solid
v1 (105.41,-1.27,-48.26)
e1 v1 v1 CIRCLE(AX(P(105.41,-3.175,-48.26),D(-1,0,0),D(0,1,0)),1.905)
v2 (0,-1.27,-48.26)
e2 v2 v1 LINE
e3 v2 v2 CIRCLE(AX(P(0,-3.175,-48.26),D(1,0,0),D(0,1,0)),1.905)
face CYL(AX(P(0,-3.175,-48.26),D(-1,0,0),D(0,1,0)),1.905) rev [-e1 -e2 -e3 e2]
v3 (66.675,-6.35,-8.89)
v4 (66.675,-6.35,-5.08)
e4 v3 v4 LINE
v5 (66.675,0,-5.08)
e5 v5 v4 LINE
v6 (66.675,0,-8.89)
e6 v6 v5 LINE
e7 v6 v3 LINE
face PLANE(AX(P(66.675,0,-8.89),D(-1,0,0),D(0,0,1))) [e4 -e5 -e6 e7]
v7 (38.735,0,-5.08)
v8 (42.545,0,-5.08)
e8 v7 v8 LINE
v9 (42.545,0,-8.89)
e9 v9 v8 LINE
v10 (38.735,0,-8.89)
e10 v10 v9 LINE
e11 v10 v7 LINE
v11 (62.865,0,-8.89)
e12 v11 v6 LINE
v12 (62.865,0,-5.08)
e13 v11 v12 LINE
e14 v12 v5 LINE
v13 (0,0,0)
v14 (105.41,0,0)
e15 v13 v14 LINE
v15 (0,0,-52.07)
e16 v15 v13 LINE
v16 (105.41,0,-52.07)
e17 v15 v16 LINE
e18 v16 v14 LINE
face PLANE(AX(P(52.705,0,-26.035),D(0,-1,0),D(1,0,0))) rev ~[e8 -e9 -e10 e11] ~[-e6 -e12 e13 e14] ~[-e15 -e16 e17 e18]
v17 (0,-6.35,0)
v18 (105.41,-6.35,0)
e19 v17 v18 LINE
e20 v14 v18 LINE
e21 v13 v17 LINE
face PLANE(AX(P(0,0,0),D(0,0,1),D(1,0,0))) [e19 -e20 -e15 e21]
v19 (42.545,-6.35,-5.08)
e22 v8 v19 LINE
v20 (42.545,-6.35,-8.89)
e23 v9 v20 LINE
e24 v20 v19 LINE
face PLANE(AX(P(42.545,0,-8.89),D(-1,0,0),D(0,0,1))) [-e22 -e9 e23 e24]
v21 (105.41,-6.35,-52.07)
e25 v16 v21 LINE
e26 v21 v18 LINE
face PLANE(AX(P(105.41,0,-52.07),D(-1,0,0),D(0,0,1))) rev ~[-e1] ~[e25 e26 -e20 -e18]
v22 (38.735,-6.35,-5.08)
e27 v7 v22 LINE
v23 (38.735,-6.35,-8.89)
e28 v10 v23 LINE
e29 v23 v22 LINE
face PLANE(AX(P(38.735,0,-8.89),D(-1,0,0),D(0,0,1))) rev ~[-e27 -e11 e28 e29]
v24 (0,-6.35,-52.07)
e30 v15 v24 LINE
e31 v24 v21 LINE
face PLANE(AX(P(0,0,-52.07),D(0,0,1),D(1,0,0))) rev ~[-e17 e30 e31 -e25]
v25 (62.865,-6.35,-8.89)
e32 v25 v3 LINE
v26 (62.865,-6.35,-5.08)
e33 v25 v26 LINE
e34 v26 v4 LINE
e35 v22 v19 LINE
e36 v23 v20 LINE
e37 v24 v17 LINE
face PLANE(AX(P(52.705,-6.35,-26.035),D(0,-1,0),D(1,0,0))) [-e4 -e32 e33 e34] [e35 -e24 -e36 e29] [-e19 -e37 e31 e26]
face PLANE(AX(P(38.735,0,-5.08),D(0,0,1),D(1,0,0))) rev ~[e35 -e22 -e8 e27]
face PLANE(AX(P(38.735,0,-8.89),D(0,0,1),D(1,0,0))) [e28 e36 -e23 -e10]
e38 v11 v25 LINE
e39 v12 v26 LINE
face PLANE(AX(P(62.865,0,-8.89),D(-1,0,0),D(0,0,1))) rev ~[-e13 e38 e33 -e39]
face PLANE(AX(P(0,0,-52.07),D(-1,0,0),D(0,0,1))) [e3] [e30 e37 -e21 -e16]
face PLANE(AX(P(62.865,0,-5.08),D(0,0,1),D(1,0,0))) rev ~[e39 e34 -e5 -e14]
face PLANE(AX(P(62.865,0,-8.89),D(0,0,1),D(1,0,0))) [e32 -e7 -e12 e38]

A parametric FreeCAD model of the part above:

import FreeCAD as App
import Part
import Sketcher

V = App.Vector
Q = App.Units.Quantity


def add_polygon(sketch, points):
    """Adds a closed chain of lines whose ends are joined by coincident constraints."""
    first, n = sketch.GeometryCount, len(points)
    for a, b in zip(points, points[1:] + points[:1]):
        sketch.addGeometry(Part.LineSegment(App.Vector(*a, 0), App.Vector(*b, 0)), False)
    for i in range(n):
        sketch.addConstraint(Sketcher.Constraint("Coincident", first + i, 2, first + (i + 1) % n, 1))

doc = App.newDocument("Part")
params = doc.addObject("Spreadsheet::Sheet", "Params")
for row, (alias, value) in enumerate([
    ("sketch1_width", "4.15 in"),
    ("sketch1_width2", "0.15 in"),
    ("sketch1_height", "2.05 in"),
    ("pad1_length", "0.25 in"),
    ("sketch2_diameter", "0.15 in"),
], start=1):
    params.set(f"A{row}", alias)
    params.set(f"B{row}", "=" + value)
    params.setAlias(f"B{row}", alias)

body = doc.addObject("PartDesign::Body", "Body")

sketch1 = body.newObject("Sketcher::SketchObject", "Sketch")
sketch1.AttachmentSupport = (doc.getObject("XZ_Plane"), [""])
sketch1.MapMode = "FlatFace"
add_polygon(sketch1, [(0, 0), (0, -52.07), (105.41, -52.07), (105.41, 0)])
add_polygon(sketch1, [(42.545, -8.89), (38.735, -8.89), (38.735, -5.08), (42.545, -5.08)])
add_polygon(sketch1, [(66.675, -8.89), (62.865, -8.89), (62.865, -5.08), (66.675, -5.08)])
sketch1.addConstraint(Sketcher.Constraint("Vertical", 0))
sketch1.addConstraint(Sketcher.Constraint("Horizontal", 1))
sketch1.addConstraint(Sketcher.Constraint("Vertical", 2))
sketch1.addConstraint(Sketcher.Constraint("Horizontal", 3))
sketch1.addConstraint(Sketcher.Constraint("Horizontal", 4))
sketch1.addConstraint(Sketcher.Constraint("Vertical", 5))
sketch1.addConstraint(Sketcher.Constraint("Horizontal", 6))
sketch1.addConstraint(Sketcher.Constraint("Vertical", 7))
sketch1.addConstraint(Sketcher.Constraint("Horizontal", 8))
sketch1.addConstraint(Sketcher.Constraint("Vertical", 9))
sketch1.addConstraint(Sketcher.Constraint("Horizontal", 10))
sketch1.addConstraint(Sketcher.Constraint("Vertical", 11))
sketch1.addConstraint(Sketcher.Constraint("Coincident", 3, 2, -1, 1))
sketch1.addConstraint(Sketcher.Constraint("Horizontal", 7, 2, 8, 2))
sketch1.addConstraint(Sketcher.Constraint("Horizontal", 6, 2, 9, 2))
sketch1.addConstraint(Sketcher.Constraint("Equal", 6, 8))
sketch1.addConstraint(Sketcher.Constraint("Equal", 10, 5))
sketch1.addConstraint(Sketcher.Constraint("DistanceX", 1, 1, 1, 2, Q("4.15 in")))
sketch1.addConstraint(Sketcher.Constraint("DistanceX", 4, 2, 4, 1, Q("0.15 in")))
sketch1.addConstraint(Sketcher.Constraint("DistanceY", 0, 2, 0, 1, Q("2.05 in")))
sketch1.addConstraint(Sketcher.Constraint("DistanceY", 5, 2, -1, 1, Q("0.2 in")))
sketch1.addConstraint(Sketcher.Constraint("DistanceX", 7, 2, 8, 2, Q("0.8 in")))
sketch1.addConstraint(Sketcher.Constraint("DistanceX", -1, 1, 4, 2, Q("1.525 in")))
sketch1.setExpression("Constraints[29]", "Params.sketch1_width")
sketch1.setExpression("Constraints[30]", "Params.sketch1_width2")
sketch1.setExpression("Constraints[31]", "Params.sketch1_height")
pad1 = body.newObject("PartDesign::Pad", "Pad")
pad1.Profile = sketch1
pad1.setExpression("Length", "Params.pad1_length")

sketch2 = body.newObject("Sketcher::SketchObject", "Sketch001")
sketch2.AttachmentSupport = (doc.getObject("YZ_Plane"), [""])
sketch2.MapMode = "FlatFace"
sketch2.addGeometry(Part.Circle(V(-3.175, -48.26, 0), V(0, 0, 1), 1.905), False)
sketch2.addConstraint(Sketcher.Constraint("Diameter", 0, Q("0.15 in")))
sketch2.addConstraint(Sketcher.Constraint("DistanceY", 0, 3, -1, 1, Q("1.9 in")))
sketch2.addConstraint(Sketcher.Constraint("DistanceX", 0, 3, -1, 1, Q("0.125 in")))
sketch2.setExpression("Constraints[0]", "Params.sketch2_diameter")
pocket1 = body.newObject("PartDesign::Pocket", "Pocket")
pocket1.Profile = sketch2
pocket1.Type = "ThroughAll"
pocket1.Reversed = True

doc.recompute()
